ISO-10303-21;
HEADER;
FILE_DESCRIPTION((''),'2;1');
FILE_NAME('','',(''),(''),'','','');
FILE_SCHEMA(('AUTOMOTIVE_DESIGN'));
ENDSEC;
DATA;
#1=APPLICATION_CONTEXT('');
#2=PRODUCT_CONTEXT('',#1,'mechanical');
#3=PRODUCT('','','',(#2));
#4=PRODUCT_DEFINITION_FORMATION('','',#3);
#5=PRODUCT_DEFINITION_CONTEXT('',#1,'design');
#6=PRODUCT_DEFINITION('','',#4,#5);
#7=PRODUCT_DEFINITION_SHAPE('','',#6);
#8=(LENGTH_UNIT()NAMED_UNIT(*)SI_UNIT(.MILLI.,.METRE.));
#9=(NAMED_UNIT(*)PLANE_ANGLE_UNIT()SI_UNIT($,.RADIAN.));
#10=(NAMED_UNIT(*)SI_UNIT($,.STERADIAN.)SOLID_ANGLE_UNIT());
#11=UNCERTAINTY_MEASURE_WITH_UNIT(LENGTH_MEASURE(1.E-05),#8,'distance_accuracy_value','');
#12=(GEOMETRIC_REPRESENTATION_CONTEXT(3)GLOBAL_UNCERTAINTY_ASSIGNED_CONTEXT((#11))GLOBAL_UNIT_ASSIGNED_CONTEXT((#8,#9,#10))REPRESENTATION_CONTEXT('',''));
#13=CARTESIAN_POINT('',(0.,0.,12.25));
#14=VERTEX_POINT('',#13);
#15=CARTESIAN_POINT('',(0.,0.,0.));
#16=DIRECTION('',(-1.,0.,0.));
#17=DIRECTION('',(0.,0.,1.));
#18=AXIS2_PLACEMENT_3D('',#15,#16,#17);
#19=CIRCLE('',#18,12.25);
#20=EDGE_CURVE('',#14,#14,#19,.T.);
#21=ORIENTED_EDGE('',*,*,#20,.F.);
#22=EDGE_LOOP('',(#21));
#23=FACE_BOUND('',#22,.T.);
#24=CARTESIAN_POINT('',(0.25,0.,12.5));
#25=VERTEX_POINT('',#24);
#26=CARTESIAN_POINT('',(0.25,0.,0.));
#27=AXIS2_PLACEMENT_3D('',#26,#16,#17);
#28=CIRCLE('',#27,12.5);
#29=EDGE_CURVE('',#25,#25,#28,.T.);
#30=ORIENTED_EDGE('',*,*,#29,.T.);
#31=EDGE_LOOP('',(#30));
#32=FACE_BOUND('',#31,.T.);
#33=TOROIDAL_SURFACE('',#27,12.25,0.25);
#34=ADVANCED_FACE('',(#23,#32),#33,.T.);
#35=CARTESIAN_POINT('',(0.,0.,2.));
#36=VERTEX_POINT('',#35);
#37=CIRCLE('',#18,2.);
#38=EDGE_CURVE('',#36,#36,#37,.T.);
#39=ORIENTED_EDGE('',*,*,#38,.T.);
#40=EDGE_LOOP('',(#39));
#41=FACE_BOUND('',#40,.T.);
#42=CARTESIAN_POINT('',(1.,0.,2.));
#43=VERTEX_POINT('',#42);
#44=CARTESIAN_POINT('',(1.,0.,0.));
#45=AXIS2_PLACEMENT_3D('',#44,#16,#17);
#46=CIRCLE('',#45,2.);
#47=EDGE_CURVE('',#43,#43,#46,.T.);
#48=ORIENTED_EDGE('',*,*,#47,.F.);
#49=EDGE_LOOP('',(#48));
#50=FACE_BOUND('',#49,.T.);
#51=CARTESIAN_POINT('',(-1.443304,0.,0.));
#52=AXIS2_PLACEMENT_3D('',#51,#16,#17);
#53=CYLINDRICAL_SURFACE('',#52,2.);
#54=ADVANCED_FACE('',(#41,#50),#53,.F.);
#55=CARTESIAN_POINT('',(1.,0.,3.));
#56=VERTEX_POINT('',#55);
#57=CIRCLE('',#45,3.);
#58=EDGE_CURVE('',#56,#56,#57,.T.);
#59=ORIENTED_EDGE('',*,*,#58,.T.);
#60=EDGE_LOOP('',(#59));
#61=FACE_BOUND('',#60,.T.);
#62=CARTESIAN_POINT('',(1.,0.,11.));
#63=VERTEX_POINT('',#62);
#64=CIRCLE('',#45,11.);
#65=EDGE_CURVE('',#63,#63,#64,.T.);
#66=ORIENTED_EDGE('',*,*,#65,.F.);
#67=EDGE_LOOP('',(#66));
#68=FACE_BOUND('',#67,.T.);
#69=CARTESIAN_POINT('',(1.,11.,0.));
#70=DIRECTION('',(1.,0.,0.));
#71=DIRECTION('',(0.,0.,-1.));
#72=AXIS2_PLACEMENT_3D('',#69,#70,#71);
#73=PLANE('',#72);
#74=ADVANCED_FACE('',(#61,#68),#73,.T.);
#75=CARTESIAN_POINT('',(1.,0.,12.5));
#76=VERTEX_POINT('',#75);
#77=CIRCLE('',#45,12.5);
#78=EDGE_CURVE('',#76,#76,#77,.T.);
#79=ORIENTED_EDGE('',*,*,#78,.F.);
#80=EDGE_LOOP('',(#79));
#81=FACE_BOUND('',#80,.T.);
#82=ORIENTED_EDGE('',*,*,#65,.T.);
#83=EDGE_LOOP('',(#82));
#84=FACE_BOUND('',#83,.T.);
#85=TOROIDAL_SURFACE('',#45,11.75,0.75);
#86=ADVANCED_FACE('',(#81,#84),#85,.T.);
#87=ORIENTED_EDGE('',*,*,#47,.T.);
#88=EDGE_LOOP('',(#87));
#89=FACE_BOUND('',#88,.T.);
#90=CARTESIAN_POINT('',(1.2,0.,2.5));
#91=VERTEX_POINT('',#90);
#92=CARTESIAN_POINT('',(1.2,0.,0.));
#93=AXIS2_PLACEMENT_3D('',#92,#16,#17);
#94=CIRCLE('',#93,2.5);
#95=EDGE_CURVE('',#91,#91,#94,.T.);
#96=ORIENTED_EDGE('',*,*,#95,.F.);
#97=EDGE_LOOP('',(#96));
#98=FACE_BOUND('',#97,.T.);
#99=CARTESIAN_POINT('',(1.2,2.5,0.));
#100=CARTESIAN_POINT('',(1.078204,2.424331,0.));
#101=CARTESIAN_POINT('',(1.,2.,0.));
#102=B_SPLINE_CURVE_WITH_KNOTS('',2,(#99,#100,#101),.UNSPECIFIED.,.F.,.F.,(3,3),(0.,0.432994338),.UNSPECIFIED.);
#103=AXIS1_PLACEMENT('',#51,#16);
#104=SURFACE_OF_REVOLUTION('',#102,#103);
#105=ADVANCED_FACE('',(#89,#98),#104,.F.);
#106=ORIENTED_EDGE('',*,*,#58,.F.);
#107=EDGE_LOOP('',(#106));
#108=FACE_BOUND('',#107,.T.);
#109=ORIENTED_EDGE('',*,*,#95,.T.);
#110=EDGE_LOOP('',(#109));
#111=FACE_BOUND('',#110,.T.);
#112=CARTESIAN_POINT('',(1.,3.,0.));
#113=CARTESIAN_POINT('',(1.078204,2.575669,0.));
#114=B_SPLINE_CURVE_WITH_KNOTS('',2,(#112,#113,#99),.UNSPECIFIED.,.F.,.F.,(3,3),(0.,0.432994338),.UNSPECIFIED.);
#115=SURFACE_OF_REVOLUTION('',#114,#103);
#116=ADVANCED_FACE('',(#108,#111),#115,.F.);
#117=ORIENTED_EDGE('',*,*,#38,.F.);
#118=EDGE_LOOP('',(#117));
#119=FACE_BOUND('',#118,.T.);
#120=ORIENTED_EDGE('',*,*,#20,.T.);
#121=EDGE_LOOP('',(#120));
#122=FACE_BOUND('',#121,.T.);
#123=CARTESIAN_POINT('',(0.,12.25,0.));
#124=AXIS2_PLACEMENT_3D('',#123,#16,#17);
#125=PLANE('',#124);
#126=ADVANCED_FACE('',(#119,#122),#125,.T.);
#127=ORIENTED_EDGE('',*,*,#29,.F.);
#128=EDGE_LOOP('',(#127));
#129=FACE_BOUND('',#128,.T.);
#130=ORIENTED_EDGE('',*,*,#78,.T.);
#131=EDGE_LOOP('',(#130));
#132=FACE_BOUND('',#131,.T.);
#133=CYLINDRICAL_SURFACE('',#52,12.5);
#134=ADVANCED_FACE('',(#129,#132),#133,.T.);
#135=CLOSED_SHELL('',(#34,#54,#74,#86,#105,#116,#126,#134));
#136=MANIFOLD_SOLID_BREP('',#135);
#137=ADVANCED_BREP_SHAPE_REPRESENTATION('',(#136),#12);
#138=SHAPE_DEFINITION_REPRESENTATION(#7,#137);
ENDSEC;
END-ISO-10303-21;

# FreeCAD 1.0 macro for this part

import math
import FreeCAD as App
import Part
import Sketcher

V = App.Vector
Q = App.Units.Quantity

doc = App.newDocument("Part")
params = doc.addObject("Spreadsheet::Sheet", "Params")
for row, (alias, value) in enumerate([
    ("sketch1_height", "8 mm"),
    ("sketch1_radius", "0.25 mm"),
    ("sketch1_radius2", "0.75 mm"),
    ("revolution_angle", "360 deg"),
], start=1):
    params.set(f"A{row}", alias)
    params.set(f"B{row}", "=" + value)
    params.setAlias(f"B{row}", alias)

body = doc.addObject("PartDesign::Body", "Body")

sketch1 = body.newObject("Sketcher::SketchObject", "Sketch")
sketch1.AttachmentSupport = (doc.getObject("XY_Plane"), [""])
sketch1.MapMode = "FlatFace"
sketch1.addGeometry(Part.LineSegment(V(1, 11, 0), V(1, 3, 0)), False)
sketch1.addGeometry(Part.BSplineCurve([V(1, 3, 0), V(1.078204, 2.575669, 0), V(1.2, 2.5, 0)], [3, 3], [0, 0.432994338], False, 2, [1, 1, 1], False), False)
sketch1.addGeometry(Part.BSplineCurve([V(1, 2, 0), V(1.078204, 2.424331, 0), V(1.2, 2.5, 0)], [3, 3], [0, 0.432994338], False, 2, [1, 1, 1], False), False)
sketch1.addGeometry(Part.LineSegment(V(1, 2, 0), V(0, 2, 0)), False)
sketch1.addGeometry(Part.LineSegment(V(0, 2, 0), V(0, 12.25, 0)), False)
sketch1.addGeometry(Part.ArcOfCircle(Part.Circle(V(0.25, 12.25, 0), V(0, 0, 1), 0.25), math.radians(90), math.radians(180)), False)
sketch1.addGeometry(Part.LineSegment(V(0.25, 12.5, 0), V(1, 12.5, 0)), False)
sketch1.addGeometry(Part.ArcOfCircle(Part.Circle(V(1, 11.75, 0), V(0, 0, 1), 0.75), math.radians(-90), math.radians(90)), False)
sketch1.addConstraint(Sketcher.Constraint("Block", 1))
sketch1.addConstraint(Sketcher.Constraint("Block", 2))
sketch1.addConstraint(Sketcher.Constraint("Coincident", 0, 2, 1, 1))
sketch1.addConstraint(Sketcher.Constraint("Coincident", 2, 1, 3, 1))
sketch1.addConstraint(Sketcher.Constraint("Coincident", 3, 2, 4, 1))
sketch1.addConstraint(Sketcher.Constraint("Tangent", 4, 2, 5, 2))
sketch1.addConstraint(Sketcher.Constraint("Tangent", 5, 1, 6, 1))
sketch1.addConstraint(Sketcher.Constraint("Tangent", 6, 2, 7, 2))
sketch1.addConstraint(Sketcher.Constraint("Coincident", 7, 1, 0, 1))
sketch1.addConstraint(Sketcher.Constraint("Vertical", 0))
sketch1.addConstraint(Sketcher.Constraint("Horizontal", 3))
sketch1.addConstraint(Sketcher.Constraint("Vertical", 4))
sketch1.addConstraint(Sketcher.Constraint("Horizontal", 6))
sketch1.addConstraint(Sketcher.Constraint("PointOnObject", 3, 2, -2))
sketch1.addConstraint(Sketcher.Constraint("Vertical", 7, 3, 0, 2))
sketch1.addConstraint(Sketcher.Constraint("DistanceY", 0, 2, 0, 1, Q("8 mm")))
sketch1.addConstraint(Sketcher.Constraint("Radius", 5, Q("0.25 mm")))
sketch1.addConstraint(Sketcher.Constraint("Radius", 7, Q("0.75 mm")))
sketch1.setExpression("Constraints[15]", "Params.sketch1_height")
sketch1.setExpression("Constraints[16]", "Params.sketch1_radius")
sketch1.setExpression("Constraints[17]", "Params.sketch1_radius2")
revolution = body.newObject("PartDesign::Revolution", "Revolution")
revolution.Profile = sketch1
revolution.ReferenceAxis = (sketch1, ["H_Axis"])
revolution.setExpression("Angle", "Params.revolution_angle")

doc.recompute()
